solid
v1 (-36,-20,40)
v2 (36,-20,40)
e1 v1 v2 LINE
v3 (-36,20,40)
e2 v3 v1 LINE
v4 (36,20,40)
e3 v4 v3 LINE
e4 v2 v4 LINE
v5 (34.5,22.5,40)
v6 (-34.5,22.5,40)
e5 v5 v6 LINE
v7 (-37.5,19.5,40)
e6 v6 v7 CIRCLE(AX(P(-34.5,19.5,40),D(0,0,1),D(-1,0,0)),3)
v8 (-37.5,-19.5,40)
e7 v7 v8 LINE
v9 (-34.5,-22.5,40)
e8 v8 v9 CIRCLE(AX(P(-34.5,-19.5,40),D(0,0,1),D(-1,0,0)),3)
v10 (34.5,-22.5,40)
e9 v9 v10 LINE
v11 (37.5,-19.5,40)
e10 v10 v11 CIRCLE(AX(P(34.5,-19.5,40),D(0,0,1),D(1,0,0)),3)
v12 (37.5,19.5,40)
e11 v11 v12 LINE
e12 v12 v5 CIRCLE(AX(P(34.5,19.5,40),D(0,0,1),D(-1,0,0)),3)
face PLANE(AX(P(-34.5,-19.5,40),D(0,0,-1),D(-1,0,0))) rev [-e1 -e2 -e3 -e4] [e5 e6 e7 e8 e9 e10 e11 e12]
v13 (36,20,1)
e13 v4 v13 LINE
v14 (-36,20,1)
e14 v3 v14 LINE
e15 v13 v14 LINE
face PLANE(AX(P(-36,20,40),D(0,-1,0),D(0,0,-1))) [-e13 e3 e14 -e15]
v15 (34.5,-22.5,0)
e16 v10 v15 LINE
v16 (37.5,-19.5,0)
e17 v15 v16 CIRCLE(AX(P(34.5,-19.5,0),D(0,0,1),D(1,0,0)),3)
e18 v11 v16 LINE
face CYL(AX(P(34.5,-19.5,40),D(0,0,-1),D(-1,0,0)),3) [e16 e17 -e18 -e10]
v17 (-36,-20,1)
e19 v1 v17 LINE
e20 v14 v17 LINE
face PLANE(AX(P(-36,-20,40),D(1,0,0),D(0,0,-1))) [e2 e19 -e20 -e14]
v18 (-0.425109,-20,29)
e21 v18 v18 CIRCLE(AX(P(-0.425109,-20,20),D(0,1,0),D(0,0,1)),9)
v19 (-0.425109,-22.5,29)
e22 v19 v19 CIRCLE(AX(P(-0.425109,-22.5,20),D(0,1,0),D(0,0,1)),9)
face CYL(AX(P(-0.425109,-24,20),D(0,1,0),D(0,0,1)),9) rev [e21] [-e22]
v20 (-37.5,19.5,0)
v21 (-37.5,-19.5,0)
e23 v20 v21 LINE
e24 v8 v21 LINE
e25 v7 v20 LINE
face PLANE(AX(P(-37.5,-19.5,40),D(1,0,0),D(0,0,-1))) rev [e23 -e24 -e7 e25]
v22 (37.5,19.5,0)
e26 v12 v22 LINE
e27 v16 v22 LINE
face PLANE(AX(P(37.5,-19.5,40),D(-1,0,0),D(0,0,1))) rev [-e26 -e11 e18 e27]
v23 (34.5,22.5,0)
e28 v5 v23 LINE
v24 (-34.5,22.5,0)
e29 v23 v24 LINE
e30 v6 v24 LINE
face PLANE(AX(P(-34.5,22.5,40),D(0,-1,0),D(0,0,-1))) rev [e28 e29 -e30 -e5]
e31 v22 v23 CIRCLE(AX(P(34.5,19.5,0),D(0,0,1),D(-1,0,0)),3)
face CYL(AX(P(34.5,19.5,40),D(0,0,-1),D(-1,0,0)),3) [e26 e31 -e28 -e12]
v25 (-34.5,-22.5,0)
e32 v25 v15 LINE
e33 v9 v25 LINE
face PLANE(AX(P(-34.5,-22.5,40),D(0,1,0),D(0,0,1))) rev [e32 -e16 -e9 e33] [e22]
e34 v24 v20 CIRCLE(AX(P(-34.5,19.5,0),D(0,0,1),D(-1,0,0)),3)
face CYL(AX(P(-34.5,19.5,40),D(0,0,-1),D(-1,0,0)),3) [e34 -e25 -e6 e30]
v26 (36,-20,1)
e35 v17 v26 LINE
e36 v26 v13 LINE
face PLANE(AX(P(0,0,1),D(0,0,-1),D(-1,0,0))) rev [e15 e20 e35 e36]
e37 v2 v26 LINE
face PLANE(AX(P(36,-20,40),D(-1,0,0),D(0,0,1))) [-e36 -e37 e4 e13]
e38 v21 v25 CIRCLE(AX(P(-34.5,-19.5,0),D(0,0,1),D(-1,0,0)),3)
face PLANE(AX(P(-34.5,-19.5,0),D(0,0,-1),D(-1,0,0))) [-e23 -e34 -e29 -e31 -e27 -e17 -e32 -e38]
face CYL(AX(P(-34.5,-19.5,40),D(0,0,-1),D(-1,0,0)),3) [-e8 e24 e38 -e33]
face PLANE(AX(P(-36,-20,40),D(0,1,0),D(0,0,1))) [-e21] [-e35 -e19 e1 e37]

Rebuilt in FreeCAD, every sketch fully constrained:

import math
import FreeCAD as App
import Part
import Sketcher

doc = App.newDocument("Part")
body = doc.addObject("PartDesign::Body", "Body")

# Sketch on XY plane
sketch1 = body.newObject("Sketcher::SketchObject", "Sketch")
sketch1.AttachmentSupport = (doc.getObject("XY_Plane"), [""])
sketch1.MapMode = "FlatFace"
sketch1.addGeometry([
    Part.LineSegment(App.Vector(-34.5, -22.5, 0), App.Vector(34.5, -22.5, 0)),  # 0
    Part.ArcOfCircle(Part.Circle(App.Vector(34.5, -19.5, 0), App.Vector(0, 0, 1), 3), math.radians(-90), math.radians(0)),  # 1
    Part.LineSegment(App.Vector(37.5, -19.5, 0), App.Vector(37.5, 19.5, 0)),  # 2
    Part.ArcOfCircle(Part.Circle(App.Vector(34.5, 19.5, 0), App.Vector(0, 0, 1), 3), math.radians(0), math.radians(90)),  # 3
    Part.LineSegment(App.Vector(34.5, 22.5, 0), App.Vector(-34.5, 22.5, 0)),  # 4
    Part.ArcOfCircle(Part.Circle(App.Vector(-34.5, 19.5, 0), App.Vector(0, 0, 1), 3), math.radians(90), math.radians(180)),  # 5
    Part.LineSegment(App.Vector(-37.5, 19.5, 0), App.Vector(-37.5, -19.5, 0)),  # 6
    Part.ArcOfCircle(Part.Circle(App.Vector(-34.5, -19.5, 0), App.Vector(0, 0, 1), 3), math.radians(180), math.radians(270)),  # 7
    Part.LineSegment(App.Vector(36, -20, 0), App.Vector(-36, -20, 0)),  # 8
    Part.LineSegment(App.Vector(-36, -20, 0), App.Vector(-36, 20, 0)),  # 9
    Part.LineSegment(App.Vector(-36, 20, 0), App.Vector(36, 20, 0)),  # 10
    Part.LineSegment(App.Vector(36, 20, 0), App.Vector(36, -20, 0)),  # 11
], False)
sketch1.addConstraint([
    Sketcher.Constraint("Tangent", 0, 2, 1, 1),
    Sketcher.Constraint("Tangent", 1, 2, 2, 1),
    Sketcher.Constraint("Tangent", 2, 2, 3, 1),
    Sketcher.Constraint("Tangent", 3, 2, 4, 1),
    Sketcher.Constraint("Tangent", 4, 2, 5, 1),
    Sketcher.Constraint("Tangent", 5, 2, 6, 1),
    Sketcher.Constraint("Tangent", 6, 2, 7, 1),
    Sketcher.Constraint("Tangent", 7, 2, 0, 1),
    Sketcher.Constraint("Coincident", 8, 2, 9, 1),
    Sketcher.Constraint("Coincident", 9, 2, 10, 1),
    Sketcher.Constraint("Coincident", 10, 2, 11, 1),
    Sketcher.Constraint("Coincident", 11, 2, 8, 1),
    Sketcher.Constraint("Horizontal", 0),
    Sketcher.Constraint("Vertical", 2),
    Sketcher.Constraint("Horizontal", 4),
    Sketcher.Constraint("Vertical", 6),
    Sketcher.Constraint("Horizontal", 8),
    Sketcher.Constraint("Vertical", 9),
    Sketcher.Constraint("Horizontal", 10),
    Sketcher.Constraint("Vertical", 11),
    Sketcher.Constraint("Equal", 1, 3),
    Sketcher.Constraint("Equal", 3, 5),
    Sketcher.Constraint("Equal", 5, 7),
    Sketcher.Constraint("Symmetric", 1, 3, 5, 3, -1, 1),
    Sketcher.Constraint("Symmetric", 8, 2, 10, 2, -1, 1),
    Sketcher.Constraint("Radius", 1, 3.0),
    Sketcher.Constraint("DistanceX", 0, 1, 0, 2, 69.0),
    Sketcher.Constraint("DistanceX", 8, 2, 8, 1, 72.0),
    Sketcher.Constraint("DistanceY", 2, 1, 2, 2, 39.0),
    Sketcher.Constraint("DistanceY", 9, 1, 9, 2, 40.0),
])
pad1 = body.newObject("PartDesign::Pad", "Pad")
pad1.Profile = sketch1
pad1.Length = 40

# Sketch on XZ plane
sketch2 = body.newObject("Sketcher::SketchObject", "Sketch001")
sketch2.AttachmentSupport = (doc.getObject("XZ_Plane"), [""])
sketch2.MapMode = "FlatFace"
sketch2.AttachmentOffset = App.Placement(App.Vector(0, 0, 20), App.Rotation())
sketch2.addGeometry(Part.Circle(App.Vector(-0.425109, 20, 0), App.Vector(0, 0, 1), 9), False)
sketch2.addConstraint([
    Sketcher.Constraint("Diameter", 0, 18.0),
    Sketcher.Constraint("DistanceY", -1, 1, 0, 3, 20.0),
    Sketcher.Constraint("DistanceX", 0, 3, -1, 1, 0.425109),
])
pocket1 = body.newObject("PartDesign::Pocket", "Pocket")
pocket1.Profile = sketch2
pocket1.Length = 4
pocket1.Reversed = True

# Sketch on XY plane
sketch3 = body.newObject("Sketcher::SketchObject", "Sketch002")
sketch3.AttachmentSupport = (doc.getObject("XY_Plane"), [""])
sketch3.MapMode = "FlatFace"
sketch3.addGeometry([
    Part.LineSegment(App.Vector(-36, 20, 0), App.Vector(-36, -20, 0)),
    Part.LineSegment(App.Vector(-36, -20, 0), App.Vector(36, -20, 0)),
    Part.LineSegment(App.Vector(36, -20, 0), App.Vector(36, 20, 0)),
    Part.LineSegment(App.Vector(36, 20, 0), App.Vector(-36, 20, 0)),
], False)
sketch3.addConstraint([
    Sketcher.Constraint("Coincident", 0, 2, 1, 1),
    Sketcher.Constraint("Coincident", 1, 2, 2, 1),
    Sketcher.Constraint("Coincident", 2, 2, 3, 1),
    Sketcher.Constraint("Coincident", 3, 2, 0, 1),
    Sketcher.Constraint("Vertical", 0),
    Sketcher.Constraint("Horizontal", 1),
    Sketcher.Constraint("Vertical", 2),
    Sketcher.Constraint("Horizontal", 3),
    Sketcher.Constraint("Symmetric", 0, 2, 2, 2, -1, 1),
    Sketcher.Constraint("DistanceX", 1, 1, 1, 2, 72.0),
    Sketcher.Constraint("DistanceY", 0, 2, 0, 1, 40.0),
])
pad2 = body.newObject("PartDesign::Pad", "Pad001")
pad2.Profile = sketch3
pad2.Length = 1

doc.recompute()
